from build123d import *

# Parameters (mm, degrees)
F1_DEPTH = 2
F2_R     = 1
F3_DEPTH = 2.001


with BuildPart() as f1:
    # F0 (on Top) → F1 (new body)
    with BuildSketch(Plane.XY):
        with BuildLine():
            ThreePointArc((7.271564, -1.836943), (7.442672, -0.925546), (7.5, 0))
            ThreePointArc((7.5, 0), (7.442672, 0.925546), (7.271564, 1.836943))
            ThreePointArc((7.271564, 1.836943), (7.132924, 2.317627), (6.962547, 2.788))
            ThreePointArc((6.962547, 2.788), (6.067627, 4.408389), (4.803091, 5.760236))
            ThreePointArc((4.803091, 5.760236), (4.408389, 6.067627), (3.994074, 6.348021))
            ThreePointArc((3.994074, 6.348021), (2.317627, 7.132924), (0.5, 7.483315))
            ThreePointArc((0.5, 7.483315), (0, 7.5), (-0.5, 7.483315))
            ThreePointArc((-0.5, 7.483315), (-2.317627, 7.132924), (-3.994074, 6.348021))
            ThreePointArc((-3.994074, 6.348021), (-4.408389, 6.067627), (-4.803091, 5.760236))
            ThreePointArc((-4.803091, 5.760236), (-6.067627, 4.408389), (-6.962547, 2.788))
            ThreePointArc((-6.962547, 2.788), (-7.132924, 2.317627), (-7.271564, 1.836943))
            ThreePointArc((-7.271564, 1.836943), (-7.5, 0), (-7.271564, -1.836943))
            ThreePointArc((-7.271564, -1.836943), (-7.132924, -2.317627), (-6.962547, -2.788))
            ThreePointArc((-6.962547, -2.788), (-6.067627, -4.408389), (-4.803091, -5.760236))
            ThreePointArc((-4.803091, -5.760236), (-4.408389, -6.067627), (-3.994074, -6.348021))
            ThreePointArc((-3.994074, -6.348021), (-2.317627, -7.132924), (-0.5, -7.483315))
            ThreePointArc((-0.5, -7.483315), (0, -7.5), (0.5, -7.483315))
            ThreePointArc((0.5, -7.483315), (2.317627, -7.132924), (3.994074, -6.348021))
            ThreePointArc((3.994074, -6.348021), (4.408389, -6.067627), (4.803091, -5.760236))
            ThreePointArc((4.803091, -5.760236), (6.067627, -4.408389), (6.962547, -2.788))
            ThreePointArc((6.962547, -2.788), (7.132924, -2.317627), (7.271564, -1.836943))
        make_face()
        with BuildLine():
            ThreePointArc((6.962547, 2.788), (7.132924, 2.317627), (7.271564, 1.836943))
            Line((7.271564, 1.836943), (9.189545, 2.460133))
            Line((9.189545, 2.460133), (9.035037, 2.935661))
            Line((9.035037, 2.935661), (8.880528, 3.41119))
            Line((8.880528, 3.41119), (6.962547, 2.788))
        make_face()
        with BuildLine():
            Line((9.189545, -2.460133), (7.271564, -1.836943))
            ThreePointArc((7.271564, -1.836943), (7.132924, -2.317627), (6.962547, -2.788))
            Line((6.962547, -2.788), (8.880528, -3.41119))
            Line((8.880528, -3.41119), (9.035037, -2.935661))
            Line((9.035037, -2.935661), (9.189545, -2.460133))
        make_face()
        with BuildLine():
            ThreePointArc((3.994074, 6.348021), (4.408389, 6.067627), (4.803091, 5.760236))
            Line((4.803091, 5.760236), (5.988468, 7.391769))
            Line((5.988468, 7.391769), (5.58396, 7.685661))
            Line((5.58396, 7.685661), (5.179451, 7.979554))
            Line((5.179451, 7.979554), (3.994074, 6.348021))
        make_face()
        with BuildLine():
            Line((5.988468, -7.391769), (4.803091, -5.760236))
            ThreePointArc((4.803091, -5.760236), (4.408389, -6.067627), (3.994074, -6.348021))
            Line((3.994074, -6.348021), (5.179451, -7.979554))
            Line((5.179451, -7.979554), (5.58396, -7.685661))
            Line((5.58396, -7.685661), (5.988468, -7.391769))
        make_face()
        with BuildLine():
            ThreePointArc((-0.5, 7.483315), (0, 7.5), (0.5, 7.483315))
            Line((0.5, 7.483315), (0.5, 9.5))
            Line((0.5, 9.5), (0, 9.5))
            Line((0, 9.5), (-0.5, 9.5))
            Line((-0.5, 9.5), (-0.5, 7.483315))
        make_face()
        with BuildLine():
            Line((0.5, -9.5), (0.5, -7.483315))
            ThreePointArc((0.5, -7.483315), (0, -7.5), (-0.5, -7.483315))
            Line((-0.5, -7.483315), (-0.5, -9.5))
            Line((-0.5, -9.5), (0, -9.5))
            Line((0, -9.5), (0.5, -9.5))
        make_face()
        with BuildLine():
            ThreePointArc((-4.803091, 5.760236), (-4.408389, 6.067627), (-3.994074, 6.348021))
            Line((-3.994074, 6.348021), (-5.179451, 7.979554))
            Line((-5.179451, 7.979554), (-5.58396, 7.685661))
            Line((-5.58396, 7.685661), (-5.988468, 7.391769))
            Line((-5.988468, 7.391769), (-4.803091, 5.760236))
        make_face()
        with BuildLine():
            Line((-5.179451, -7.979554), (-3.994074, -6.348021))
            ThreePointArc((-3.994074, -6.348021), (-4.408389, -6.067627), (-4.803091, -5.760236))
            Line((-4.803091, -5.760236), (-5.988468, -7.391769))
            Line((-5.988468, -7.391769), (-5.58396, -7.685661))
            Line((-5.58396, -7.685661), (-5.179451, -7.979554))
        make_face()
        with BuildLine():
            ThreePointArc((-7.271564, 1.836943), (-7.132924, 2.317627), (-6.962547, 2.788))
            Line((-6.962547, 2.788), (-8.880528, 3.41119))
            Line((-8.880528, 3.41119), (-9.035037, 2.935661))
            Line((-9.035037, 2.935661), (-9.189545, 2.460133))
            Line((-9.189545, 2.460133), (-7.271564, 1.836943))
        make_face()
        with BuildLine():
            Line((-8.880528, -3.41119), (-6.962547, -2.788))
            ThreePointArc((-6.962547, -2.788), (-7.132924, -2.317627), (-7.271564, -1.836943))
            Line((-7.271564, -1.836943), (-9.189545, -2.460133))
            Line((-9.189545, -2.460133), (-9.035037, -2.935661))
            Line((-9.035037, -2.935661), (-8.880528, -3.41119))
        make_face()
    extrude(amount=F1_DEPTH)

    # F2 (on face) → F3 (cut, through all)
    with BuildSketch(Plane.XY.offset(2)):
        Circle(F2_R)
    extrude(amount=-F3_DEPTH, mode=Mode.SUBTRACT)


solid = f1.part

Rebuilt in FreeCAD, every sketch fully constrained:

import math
import FreeCAD as App
import Part
import Sketcher
from FreeCAD import Vector
Q = App.Units.Quantity

doc = App.newDocument("Part")
params = doc.addObject("Spreadsheet::Sheet", "Params")
for row, (alias, value) in enumerate([
    ("sketch1_radius", "7.500002 mm"),
    ("sketch1_width", "1 mm"),
    ("sketch1_length", "0.5 mm"),
    ("pad1_length", "2 mm"),
    ("sketch2_diameter", "2 mm"),
], start=1):
    params.set(f"A{row}", alias)
    params.set(f"B{row}", "=" + value)
    params.setAlias(f"B{row}", alias)

body = doc.addObject("PartDesign::Body", "Body")

# Sketch on XY plane
sketch1 = doc.addObject("Sketcher::SketchObject", "Sketch")
body.addObject(sketch1)
sketch1.AttachmentSupport = (doc.XY_Plane, [""])
sketch1.MapMode = "FlatFace"
sketch1.addGeometry([
    Part.ArcOfCircle(Part.Circle(Vector(0.000005, -0.000001, 0), Vector(0, 0, 1), 7.499995), math.radians(-14.177444), math.radians(0.00001)),  # 0
    Part.ArcOfCircle(Part.Circle(Vector(0.000005, 0.000001, 0), Vector(0, 0, 1), 7.499995), math.radians(-0.00001), math.radians(14.177444)),  # 1
    Part.LineSegment(Vector(7.271564, 1.836943, 0), Vector(9.189545, 2.460133, 0)),  # 2
    Part.LineSegment(Vector(9.189545, 2.460133, 0), Vector(9.035037, 2.935661, 0)),  # 3
    Part.LineSegment(Vector(9.035037, 2.935661, 0), Vector(8.880528, 3.41119, 0)),  # 4
    Part.LineSegment(Vector(8.880528, 3.41119, 0), Vector(6.962547, 2.788, 0)),  # 5
    Part.ArcOfCircle(Part.Circle(Vector(-0.000022, -0.000016, 0), Vector(0, 0, 1), 7.500026), math.radians(21.822609), math.radians(50.177395)),  # 6
    Part.LineSegment(Vector(4.803091, 5.760236, 0), Vector(5.988468, 7.391769, 0)),  # 7
    Part.LineSegment(Vector(5.988468, 7.391769, 0), Vector(5.58396, 7.685661, 0)),  # 8
    Part.LineSegment(Vector(5.58396, 7.685661, 0), Vector(5.179451, 7.979554, 0)),  # 9
    Part.LineSegment(Vector(5.179451, 7.979554, 0), Vector(3.994074, 6.348021, 0)),  # 10
    Part.ArcOfCircle(Part.Circle(Vector(-0.000001, -0.000002, 0), Vector(0, 0, 1), 7.500002), math.radians(57.822547), math.radians(86.177437)),  # 11
    Part.LineSegment(Vector(0.5, 7.483315, 0), Vector(0.5, 9.5, 0)),  # 12
    Part.LineSegment(Vector(0.5, 9.5, 0), Vector(-0.5, 9.5, 0)),  # 13
    Part.LineSegment(Vector(-0.5, 9.5, 0), Vector(-0.5, 7.483315, 0)),  # 14
    Part.ArcOfCircle(Part.Circle(Vector(0.000001, -0.000002, 0), Vector(0, 0, 1), 7.500002), math.radians(93.822563), math.radians(122.177453)),  # 15
    Part.LineSegment(Vector(-3.994074, 6.348021, 0), Vector(-5.179451, 7.979554, 0)),  # 16
    Part.LineSegment(Vector(-5.179451, 7.979554, 0), Vector(-5.58396, 7.685661, 0)),  # 17
    Part.LineSegment(Vector(-5.58396, 7.685661, 0), Vector(-5.988468, 7.391769, 0)),  # 18
    Part.LineSegment(Vector(-5.988468, 7.391769, 0), Vector(-4.803091, 5.760236, 0)),  # 19
    Part.ArcOfCircle(Part.Circle(Vector(0.000022, -0.000016, 0), Vector(0, 0, 1), 7.500026), math.radians(129.822605), math.radians(158.177391)),  # 20
    Part.LineSegment(Vector(-6.962547, 2.788, 0), Vector(-8.880528, 3.41119, 0)),  # 21
    Part.LineSegment(Vector(-8.880528, 3.41119, 0), Vector(-9.035037, 2.935661, 0)),  # 22
    Part.LineSegment(Vector(-9.035037, 2.935661, 0), Vector(-9.189545, 2.460133, 0)),  # 23
    Part.LineSegment(Vector(-9.189545, 2.460133, 0), Vector(-7.271564, 1.836943, 0)),  # 24
    Part.ArcOfCircle(Part.Circle(Vector(0.000006, 0, 0), Vector(0, 0, 1), 7.500006), math.radians(165.822566), math.radians(194.177434)),  # 25
    Part.LineSegment(Vector(-7.271564, -1.836943, 0), Vector(-9.189545, -2.460133, 0)),  # 26
    Part.LineSegment(Vector(-9.189545, -2.460133, 0), Vector(-9.035037, -2.935661, 0)),  # 27
    Part.LineSegment(Vector(-9.035037, -2.935661, 0), Vector(-8.880528, -3.41119, 0)),  # 28
    Part.LineSegment(Vector(-8.880528, -3.41119, 0), Vector(-6.962547, -2.788, 0)),  # 29
    Part.ArcOfCircle(Part.Circle(Vector(0.000022, 0.000016, 0), Vector(0, 0, 1), 7.500026), math.radians(-158.177391), math.radians(-129.822605)),  # 30
    Part.LineSegment(Vector(-4.803091, -5.760236, 0), Vector(-5.988468, -7.391769, 0)),  # 31
    Part.LineSegment(Vector(-5.988468, -7.391769, 0), Vector(-5.58396, -7.685661, 0)),  # 32
    Part.LineSegment(Vector(-5.58396, -7.685661, 0), Vector(-5.179451, -7.979554, 0)),  # 33
    Part.LineSegment(Vector(-5.179451, -7.979554, 0), Vector(-3.994074, -6.348021, 0)),  # 34
    Part.ArcOfCircle(Part.Circle(Vector(0.000001, 0.000002, 0), Vector(0, 0, 1), 7.500002), math.radians(-122.177453), math.radians(-93.822563)),  # 35
    Part.LineSegment(Vector(-0.5, -7.483315, 0), Vector(-0.5, -9.5, 0)),  # 36
    Part.LineSegment(Vector(-0.5, -9.5, 0), Vector(0.5, -9.5, 0)),  # 37
    Part.LineSegment(Vector(0.5, -9.5, 0), Vector(0.5, -7.483315, 0)),  # 38
    Part.ArcOfCircle(Part.Circle(Vector(-0.000001, 0.000002, 0), Vector(0, 0, 1), 7.500002), math.radians(-86.177437), math.radians(-57.822547)),  # 39
    Part.LineSegment(Vector(3.994074, -6.348021, 0), Vector(5.179451, -7.979554, 0)),  # 40
    Part.LineSegment(Vector(5.179451, -7.979554, 0), Vector(5.58396, -7.685661, 0)),  # 41
    Part.LineSegment(Vector(5.58396, -7.685661, 0), Vector(5.988468, -7.391769, 0)),  # 42
    Part.LineSegment(Vector(5.988468, -7.391769, 0), Vector(4.803091, -5.760236, 0)),  # 43
    Part.ArcOfCircle(Part.Circle(Vector(-0.000022, 0.000016, 0), Vector(0, 0, 1), 7.500026), math.radians(-50.177395), math.radians(-21.822609)),  # 44
    Part.LineSegment(Vector(6.962547, -2.788, 0), Vector(8.880528, -3.41119, 0)),  # 45
    Part.LineSegment(Vector(8.880528, -3.41119, 0), Vector(9.035037, -2.935661, 0)),  # 46
    Part.LineSegment(Vector(9.035037, -2.935661, 0), Vector(9.189545, -2.460133, 0)),  # 47
    Part.LineSegment(Vector(9.189545, -2.460133, 0), Vector(7.271564, -1.836943, 0)),  # 48
], False)
sketch1.addConstraint([
    Sketcher.Constraint("Tangent", 0, 2, 1, 1),
    Sketcher.Constraint("Coincident", 1, 2, 2, 1),
    Sketcher.Constraint("Coincident", 2, 2, 3, 1),
    Sketcher.Constraint("Coincident", 3, 2, 4, 1),
    Sketcher.Constraint("Coincident", 4, 2, 5, 1),
    Sketcher.Constraint("Coincident", 5, 2, 6, 1),
    Sketcher.Constraint("Coincident", 6, 2, 7, 1),
    Sketcher.Constraint("Coincident", 7, 2, 8, 1),
    Sketcher.Constraint("Coincident", 8, 2, 9, 1),
    Sketcher.Constraint("Coincident", 9, 2, 10, 1),
    Sketcher.Constraint("Coincident", 10, 2, 11, 1),
    Sketcher.Constraint("Coincident", 11, 2, 12, 1),
    Sketcher.Constraint("Coincident", 12, 2, 13, 1),
    Sketcher.Constraint("Coincident", 13, 2, 14, 1),
    Sketcher.Constraint("Coincident", 14, 2, 15, 1),
    Sketcher.Constraint("Coincident", 15, 2, 16, 1),
    Sketcher.Constraint("Coincident", 16, 2, 17, 1),
    Sketcher.Constraint("Coincident", 17, 2, 18, 1),
    Sketcher.Constraint("Coincident", 18, 2, 19, 1),
    Sketcher.Constraint("Coincident", 19, 2, 20, 1),
    Sketcher.Constraint("Coincident", 20, 2, 21, 1),
    Sketcher.Constraint("Coincident", 21, 2, 22, 1),
    Sketcher.Constraint("Coincident", 22, 2, 23, 1),
    Sketcher.Constraint("Coincident", 23, 2, 24, 1),
    Sketcher.Constraint("Coincident", 24, 2, 25, 1),
    Sketcher.Constraint("Coincident", 25, 2, 26, 1),
    Sketcher.Constraint("Coincident", 26, 2, 27, 1),
    Sketcher.Constraint("Coincident", 27, 2, 28, 1),
    Sketcher.Constraint("Coincident", 28, 2, 29, 1),
    Sketcher.Constraint("Coincident", 29, 2, 30, 1),
    Sketcher.Constraint("Coincident", 30, 2, 31, 1),
    Sketcher.Constraint("Coincident", 31, 2, 32, 1),
    Sketcher.Constraint("Coincident", 32, 2, 33, 1),
    Sketcher.Constraint("Coincident", 33, 2, 34, 1),
    Sketcher.Constraint("Coincident", 34, 2, 35, 1),
    Sketcher.Constraint("Coincident", 35, 2, 36, 1),
    Sketcher.Constraint("Coincident", 36, 2, 37, 1),
    Sketcher.Constraint("Coincident", 37, 2, 38, 1),
    Sketcher.Constraint("Coincident", 38, 2, 39, 1),
    Sketcher.Constraint("Coincident", 39, 2, 40, 1),
    Sketcher.Constraint("Coincident", 40, 2, 41, 1),
    Sketcher.Constraint("Coincident", 41, 2, 42, 1),
    Sketcher.Constraint("Coincident", 42, 2, 43, 1),
    Sketcher.Constraint("Coincident", 43, 2, 44, 1),
    Sketcher.Constraint("Coincident", 44, 2, 45, 1),
    Sketcher.Constraint("Coincident", 45, 2, 46, 1),
    Sketcher.Constraint("Coincident", 46, 2, 47, 1),
    Sketcher.Constraint("Coincident", 47, 2, 48, 1),
    Sketcher.Constraint("Coincident", 48, 2, 0, 1),
    Sketcher.Constraint("Vertical", 12),
    Sketcher.Constraint("Horizontal", 13),
    Sketcher.Constraint("Vertical", 14),
    Sketcher.Constraint("Vertical", 36),
    Sketcher.Constraint("Horizontal", 37),
    Sketcher.Constraint("Vertical", 38),
    Sketcher.Constraint("Coincident", 0, 3, -1, 1),
    Sketcher.Constraint("Coincident", 11, 3, -1, 1),
    Sketcher.Constraint("Coincident", 15, 3, -1, 1),
    Sketcher.Constraint("Coincident", 25, 3, -1, 1),
    Sketcher.Constraint("Coincident", 35, 3, -1, 1),
    Sketcher.Constraint("Coincident", 39, 3, -1, 1),
    Sketcher.Constraint("Equal", 0, 1),
    Sketcher.Constraint("Equal", 11, 15),
    Sketcher.Constraint("Equal", 6, 20),
    Sketcher.Constraint("Equal", 20, 30),
    Sketcher.Constraint("Equal", 15, 35),
    Sketcher.Constraint("Equal", 35, 39),
    Sketcher.Constraint("Equal", 30, 44),
    Sketcher.Constraint("Symmetric", 6, 3, 30, 3, -1, 1),
    Sketcher.Constraint("Symmetric", 20, 3, 44, 3, -1, 1),
    Sketcher.Constraint("Symmetric", 1, 2, 25, 2, -1, 1),
    Sketcher.Constraint("Symmetric", 2, 2, 26, 2, -1, 1),
    Sketcher.Constraint("Symmetric", 3, 2, 27, 2, -1, 1),
    Sketcher.Constraint("Symmetric", 4, 2, 28, 2, -1, 1),
    Sketcher.Constraint("Symmetric", 7, 2, 31, 2, -1, 1),
    Sketcher.Constraint("Symmetric", 8, 2, 32, 2, -1, 1),
    Sketcher.Constraint("Symmetric", 9, 2, 33, 2, -1, 1),
    Sketcher.Constraint("Symmetric", 12, 2, 36, 2, -1, 1),
    Sketcher.Constraint("Symmetric", 16, 2, 40, 2, -1, 1),
    Sketcher.Constraint("Symmetric", 17, 2, 41, 2, -1, 1),
    Sketcher.Constraint("Symmetric", 18, 2, 42, 2, -1, 1),
    Sketcher.Constraint("Symmetric", 21, 2, 45, 2, -1, 1),
    Sketcher.Constraint("Symmetric", 22, 2, 46, 2, -1, 1),
    Sketcher.Constraint("Symmetric", 23, 2, 47, 2, -1, 1),
    Sketcher.Constraint("Symmetric", 6, 3, 20, 3, -2),
    Sketcher.Constraint("Symmetric", 9, 2, 16, 2, -2),
    Sketcher.Constraint("Symmetric", 8, 2, 17, 2, -2),
    Sketcher.Constraint("Symmetric", 7, 2, 18, 2, -2),
    Sketcher.Constraint("Symmetric", 4, 2, 21, 2, -2),
    Sketcher.Constraint("Symmetric", 3, 2, 22, 2, -2),
    Sketcher.Constraint("Symmetric", 2, 2, 23, 2, -2),
    Sketcher.Constraint("PointOnObject", 0, 2, -1),
    Sketcher.Constraint("Perpendicular", 2, 3),
    Sketcher.Constraint("Parallel", 3, 4),
    Sketcher.Constraint("Perpendicular", 4, 5),
    Sketcher.Constraint("Perpendicular", 7, 8),
    Sketcher.Constraint("Parallel", 8, 9),
    Sketcher.Constraint("Perpendicular", 9, 10),
    Sketcher.Constraint("Perpendicular", 16, 17),
    Sketcher.Constraint("Perpendicular", 18, 19),
    Sketcher.Constraint("Perpendicular", 21, 22),
    Sketcher.Constraint("Perpendicular", 23, 24),
    Sketcher.Constraint("Perpendicular", 28, 29),
    Sketcher.Constraint("Parallel", 10, 31),
    Sketcher.Constraint("Perpendicular", 33, 34),
    Sketcher.Constraint("Parallel", 19, 40),
    Sketcher.Constraint("Perpendicular", 42, 43),
    Sketcher.Constraint("Parallel", 24, 45),
    Sketcher.Constraint("Perpendicular", 47, 48),
    Sketcher.Constraint("Horizontal", 11, 2, 14, 2),
    Sketcher.Constraint("Horizontal", 35, 2, 38, 2),
    Sketcher.Constraint("Equal", 3, 4),
    Sketcher.Constraint("Equal", 2, 5),
    Sketcher.Constraint("Equal", 5, 7),
    Sketcher.Constraint("Equal", 4, 8),
    Sketcher.Constraint("Equal", 8, 9),
    Sketcher.Constraint("Equal", 7, 10),
    Sketcher.Constraint("Radius", 11, Q("7.500002 mm")),
    Sketcher.Constraint("DistanceX", 13, 2, 13, 1, Q("1 mm")),
    Sketcher.Constraint("Angle", 2, Q("18.000005 deg")),
    Sketcher.Constraint("Angle", 9, Q("143.999999 deg")),
    Sketcher.Constraint("Distance", 3, Q("0.5 mm")),
    Sketcher.Constraint("DistanceX", -1, 1, 0, 2, Q("7.5 mm")),
    Sketcher.Constraint("DistanceY", -1, 1, 12, 2, Q("9.5 mm")),
    Sketcher.Constraint("DistanceY", 3, 2, 8, 2, Q("4.75 mm")),
    Sketcher.Constraint("DistanceY", -1, 1, 5, 2, Q("2.788 mm")),
    Sketcher.Constraint("Radius", 6, Q("7.500026 mm")),
    Sketcher.Constraint("DistanceX", 5, 2, 2, 2, Q("2.226998 mm")),
])
sketch1.setExpression("Constraints[117]", "Params.sketch1_radius")
sketch1.setExpression("Constraints[118]", "Params.sketch1_width")
sketch1.setExpression("Constraints[121]", "Params.sketch1_length")
pad1 = doc.addObject("PartDesign::Pad", "Pad")
body.addObject(pad1)
pad1.Profile = sketch1
pad1.setExpression("Length", "Params.pad1_length")

# Sketch on XY plane
sketch2 = doc.addObject("Sketcher::SketchObject", "Sketch001")
body.addObject(sketch2)
sketch2.AttachmentSupport = (doc.XY_Plane, [""])
sketch2.MapMode = "FlatFace"
sketch2.AttachmentOffset = App.Placement(Vector(0, 0, 2), App.Rotation())
sketch2.addGeometry(Part.Circle(Vector(0, 0, 0), Vector(0, 0, 1), 1), False)
sketch2.addConstraint([
    Sketcher.Constraint("Coincident", 0, 3, -1, 1),
    Sketcher.Constraint("Diameter", 0, Q("2 mm")),
])
sketch2.setExpression("Constraints[1]", "Params.sketch2_diameter")
pocket1 = doc.addObject("PartDesign::Pocket", "Pocket")
body.addObject(pocket1)
pocket1.Profile = sketch2
pocket1.Type = "ThroughAll"

doc.recompute()
